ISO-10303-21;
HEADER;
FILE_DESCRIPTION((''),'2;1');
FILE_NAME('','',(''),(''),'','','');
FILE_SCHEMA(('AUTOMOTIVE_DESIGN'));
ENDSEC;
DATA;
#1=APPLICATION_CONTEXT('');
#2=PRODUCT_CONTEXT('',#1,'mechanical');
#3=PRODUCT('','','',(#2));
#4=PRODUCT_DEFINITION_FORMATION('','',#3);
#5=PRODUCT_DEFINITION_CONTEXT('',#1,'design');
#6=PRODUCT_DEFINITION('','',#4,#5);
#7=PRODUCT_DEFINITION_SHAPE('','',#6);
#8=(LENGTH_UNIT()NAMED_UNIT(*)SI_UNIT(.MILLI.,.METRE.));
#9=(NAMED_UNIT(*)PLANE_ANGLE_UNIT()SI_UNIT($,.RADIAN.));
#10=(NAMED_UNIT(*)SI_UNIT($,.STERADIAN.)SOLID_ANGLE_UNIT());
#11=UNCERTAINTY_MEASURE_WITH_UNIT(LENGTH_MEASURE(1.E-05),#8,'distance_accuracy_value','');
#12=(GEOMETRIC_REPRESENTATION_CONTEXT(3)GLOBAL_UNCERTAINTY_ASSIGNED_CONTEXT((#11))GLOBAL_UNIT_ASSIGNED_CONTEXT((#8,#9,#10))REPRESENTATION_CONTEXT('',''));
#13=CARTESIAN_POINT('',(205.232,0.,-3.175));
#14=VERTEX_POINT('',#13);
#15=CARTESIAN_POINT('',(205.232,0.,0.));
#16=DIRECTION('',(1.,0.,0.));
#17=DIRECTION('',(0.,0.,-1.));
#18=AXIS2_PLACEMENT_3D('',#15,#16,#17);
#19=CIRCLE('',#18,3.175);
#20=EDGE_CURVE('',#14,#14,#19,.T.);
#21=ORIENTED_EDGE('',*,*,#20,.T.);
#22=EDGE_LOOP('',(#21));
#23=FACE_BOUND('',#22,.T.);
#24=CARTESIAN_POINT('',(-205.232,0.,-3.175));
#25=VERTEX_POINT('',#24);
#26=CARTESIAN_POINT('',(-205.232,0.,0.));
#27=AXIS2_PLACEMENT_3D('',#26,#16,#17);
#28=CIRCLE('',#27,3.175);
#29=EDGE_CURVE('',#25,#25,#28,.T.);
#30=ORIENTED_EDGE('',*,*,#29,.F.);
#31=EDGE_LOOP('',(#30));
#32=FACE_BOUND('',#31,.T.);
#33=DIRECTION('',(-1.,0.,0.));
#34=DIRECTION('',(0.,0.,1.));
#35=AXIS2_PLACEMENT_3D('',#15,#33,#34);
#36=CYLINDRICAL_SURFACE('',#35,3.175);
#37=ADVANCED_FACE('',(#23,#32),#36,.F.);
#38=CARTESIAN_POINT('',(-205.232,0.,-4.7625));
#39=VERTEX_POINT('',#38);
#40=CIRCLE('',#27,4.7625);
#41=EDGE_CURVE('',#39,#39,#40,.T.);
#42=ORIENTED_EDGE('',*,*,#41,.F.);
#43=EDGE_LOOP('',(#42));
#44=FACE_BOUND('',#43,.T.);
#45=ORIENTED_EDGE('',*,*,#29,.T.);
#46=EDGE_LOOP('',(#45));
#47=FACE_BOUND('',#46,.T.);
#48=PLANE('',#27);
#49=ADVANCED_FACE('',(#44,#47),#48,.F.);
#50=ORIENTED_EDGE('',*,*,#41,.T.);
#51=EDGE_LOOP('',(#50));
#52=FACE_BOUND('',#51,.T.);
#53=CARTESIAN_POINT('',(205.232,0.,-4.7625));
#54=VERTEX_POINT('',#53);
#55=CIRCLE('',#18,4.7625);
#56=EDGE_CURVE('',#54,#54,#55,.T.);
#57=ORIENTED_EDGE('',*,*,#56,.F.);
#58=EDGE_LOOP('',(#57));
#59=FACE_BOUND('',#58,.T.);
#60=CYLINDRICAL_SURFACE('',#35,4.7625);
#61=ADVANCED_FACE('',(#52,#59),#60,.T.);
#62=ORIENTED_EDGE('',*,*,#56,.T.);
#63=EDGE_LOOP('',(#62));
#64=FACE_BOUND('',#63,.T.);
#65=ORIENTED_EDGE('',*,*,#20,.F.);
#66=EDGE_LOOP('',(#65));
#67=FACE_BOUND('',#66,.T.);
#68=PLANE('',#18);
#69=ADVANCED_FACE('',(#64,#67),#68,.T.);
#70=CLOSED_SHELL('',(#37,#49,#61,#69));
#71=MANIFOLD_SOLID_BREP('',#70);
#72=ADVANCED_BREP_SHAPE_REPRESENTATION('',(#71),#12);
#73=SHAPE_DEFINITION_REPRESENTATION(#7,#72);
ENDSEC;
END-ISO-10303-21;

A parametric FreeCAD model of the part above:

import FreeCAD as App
import Part
import Sketcher
Q = App.Units.Quantity

doc = App.newDocument("Part")
body = doc.addObject("PartDesign::Body", "Body")

# Sketch on YZ plane
sketch1 = body.newObject("Sketcher::SketchObject", "Sketch")
sketch1.AttachmentSupport = (doc.getObject("YZ_Plane"), [""])
sketch1.MapMode = "FlatFace"
sketch1.addGeometry(Part.Circle(App.Vector(0, 0, 0), App.Vector(0, 0, 1), 4.7625), False)
sketch1.addGeometry(Part.Circle(App.Vector(0, 0, 0), App.Vector(0, 0, 1), 3.175), False)
sketch1.addConstraint(Sketcher.Constraint("Coincident", 0, 3, -1, 1))
sketch1.addConstraint(Sketcher.Constraint("Coincident", 1, 3, -1, 1))
sketch1.addConstraint(Sketcher.Constraint("Diameter", 1, Q("0.25 in")))
sketch1.addConstraint(Sketcher.Constraint("Diameter", 0, Q("0.375 in")))
pad1 = body.newObject("PartDesign::Pad", "Pad")
pad1.Profile = sketch1
pad1.Length = Q("16.16 in")
pad1.Midplane = True

doc.recompute()
